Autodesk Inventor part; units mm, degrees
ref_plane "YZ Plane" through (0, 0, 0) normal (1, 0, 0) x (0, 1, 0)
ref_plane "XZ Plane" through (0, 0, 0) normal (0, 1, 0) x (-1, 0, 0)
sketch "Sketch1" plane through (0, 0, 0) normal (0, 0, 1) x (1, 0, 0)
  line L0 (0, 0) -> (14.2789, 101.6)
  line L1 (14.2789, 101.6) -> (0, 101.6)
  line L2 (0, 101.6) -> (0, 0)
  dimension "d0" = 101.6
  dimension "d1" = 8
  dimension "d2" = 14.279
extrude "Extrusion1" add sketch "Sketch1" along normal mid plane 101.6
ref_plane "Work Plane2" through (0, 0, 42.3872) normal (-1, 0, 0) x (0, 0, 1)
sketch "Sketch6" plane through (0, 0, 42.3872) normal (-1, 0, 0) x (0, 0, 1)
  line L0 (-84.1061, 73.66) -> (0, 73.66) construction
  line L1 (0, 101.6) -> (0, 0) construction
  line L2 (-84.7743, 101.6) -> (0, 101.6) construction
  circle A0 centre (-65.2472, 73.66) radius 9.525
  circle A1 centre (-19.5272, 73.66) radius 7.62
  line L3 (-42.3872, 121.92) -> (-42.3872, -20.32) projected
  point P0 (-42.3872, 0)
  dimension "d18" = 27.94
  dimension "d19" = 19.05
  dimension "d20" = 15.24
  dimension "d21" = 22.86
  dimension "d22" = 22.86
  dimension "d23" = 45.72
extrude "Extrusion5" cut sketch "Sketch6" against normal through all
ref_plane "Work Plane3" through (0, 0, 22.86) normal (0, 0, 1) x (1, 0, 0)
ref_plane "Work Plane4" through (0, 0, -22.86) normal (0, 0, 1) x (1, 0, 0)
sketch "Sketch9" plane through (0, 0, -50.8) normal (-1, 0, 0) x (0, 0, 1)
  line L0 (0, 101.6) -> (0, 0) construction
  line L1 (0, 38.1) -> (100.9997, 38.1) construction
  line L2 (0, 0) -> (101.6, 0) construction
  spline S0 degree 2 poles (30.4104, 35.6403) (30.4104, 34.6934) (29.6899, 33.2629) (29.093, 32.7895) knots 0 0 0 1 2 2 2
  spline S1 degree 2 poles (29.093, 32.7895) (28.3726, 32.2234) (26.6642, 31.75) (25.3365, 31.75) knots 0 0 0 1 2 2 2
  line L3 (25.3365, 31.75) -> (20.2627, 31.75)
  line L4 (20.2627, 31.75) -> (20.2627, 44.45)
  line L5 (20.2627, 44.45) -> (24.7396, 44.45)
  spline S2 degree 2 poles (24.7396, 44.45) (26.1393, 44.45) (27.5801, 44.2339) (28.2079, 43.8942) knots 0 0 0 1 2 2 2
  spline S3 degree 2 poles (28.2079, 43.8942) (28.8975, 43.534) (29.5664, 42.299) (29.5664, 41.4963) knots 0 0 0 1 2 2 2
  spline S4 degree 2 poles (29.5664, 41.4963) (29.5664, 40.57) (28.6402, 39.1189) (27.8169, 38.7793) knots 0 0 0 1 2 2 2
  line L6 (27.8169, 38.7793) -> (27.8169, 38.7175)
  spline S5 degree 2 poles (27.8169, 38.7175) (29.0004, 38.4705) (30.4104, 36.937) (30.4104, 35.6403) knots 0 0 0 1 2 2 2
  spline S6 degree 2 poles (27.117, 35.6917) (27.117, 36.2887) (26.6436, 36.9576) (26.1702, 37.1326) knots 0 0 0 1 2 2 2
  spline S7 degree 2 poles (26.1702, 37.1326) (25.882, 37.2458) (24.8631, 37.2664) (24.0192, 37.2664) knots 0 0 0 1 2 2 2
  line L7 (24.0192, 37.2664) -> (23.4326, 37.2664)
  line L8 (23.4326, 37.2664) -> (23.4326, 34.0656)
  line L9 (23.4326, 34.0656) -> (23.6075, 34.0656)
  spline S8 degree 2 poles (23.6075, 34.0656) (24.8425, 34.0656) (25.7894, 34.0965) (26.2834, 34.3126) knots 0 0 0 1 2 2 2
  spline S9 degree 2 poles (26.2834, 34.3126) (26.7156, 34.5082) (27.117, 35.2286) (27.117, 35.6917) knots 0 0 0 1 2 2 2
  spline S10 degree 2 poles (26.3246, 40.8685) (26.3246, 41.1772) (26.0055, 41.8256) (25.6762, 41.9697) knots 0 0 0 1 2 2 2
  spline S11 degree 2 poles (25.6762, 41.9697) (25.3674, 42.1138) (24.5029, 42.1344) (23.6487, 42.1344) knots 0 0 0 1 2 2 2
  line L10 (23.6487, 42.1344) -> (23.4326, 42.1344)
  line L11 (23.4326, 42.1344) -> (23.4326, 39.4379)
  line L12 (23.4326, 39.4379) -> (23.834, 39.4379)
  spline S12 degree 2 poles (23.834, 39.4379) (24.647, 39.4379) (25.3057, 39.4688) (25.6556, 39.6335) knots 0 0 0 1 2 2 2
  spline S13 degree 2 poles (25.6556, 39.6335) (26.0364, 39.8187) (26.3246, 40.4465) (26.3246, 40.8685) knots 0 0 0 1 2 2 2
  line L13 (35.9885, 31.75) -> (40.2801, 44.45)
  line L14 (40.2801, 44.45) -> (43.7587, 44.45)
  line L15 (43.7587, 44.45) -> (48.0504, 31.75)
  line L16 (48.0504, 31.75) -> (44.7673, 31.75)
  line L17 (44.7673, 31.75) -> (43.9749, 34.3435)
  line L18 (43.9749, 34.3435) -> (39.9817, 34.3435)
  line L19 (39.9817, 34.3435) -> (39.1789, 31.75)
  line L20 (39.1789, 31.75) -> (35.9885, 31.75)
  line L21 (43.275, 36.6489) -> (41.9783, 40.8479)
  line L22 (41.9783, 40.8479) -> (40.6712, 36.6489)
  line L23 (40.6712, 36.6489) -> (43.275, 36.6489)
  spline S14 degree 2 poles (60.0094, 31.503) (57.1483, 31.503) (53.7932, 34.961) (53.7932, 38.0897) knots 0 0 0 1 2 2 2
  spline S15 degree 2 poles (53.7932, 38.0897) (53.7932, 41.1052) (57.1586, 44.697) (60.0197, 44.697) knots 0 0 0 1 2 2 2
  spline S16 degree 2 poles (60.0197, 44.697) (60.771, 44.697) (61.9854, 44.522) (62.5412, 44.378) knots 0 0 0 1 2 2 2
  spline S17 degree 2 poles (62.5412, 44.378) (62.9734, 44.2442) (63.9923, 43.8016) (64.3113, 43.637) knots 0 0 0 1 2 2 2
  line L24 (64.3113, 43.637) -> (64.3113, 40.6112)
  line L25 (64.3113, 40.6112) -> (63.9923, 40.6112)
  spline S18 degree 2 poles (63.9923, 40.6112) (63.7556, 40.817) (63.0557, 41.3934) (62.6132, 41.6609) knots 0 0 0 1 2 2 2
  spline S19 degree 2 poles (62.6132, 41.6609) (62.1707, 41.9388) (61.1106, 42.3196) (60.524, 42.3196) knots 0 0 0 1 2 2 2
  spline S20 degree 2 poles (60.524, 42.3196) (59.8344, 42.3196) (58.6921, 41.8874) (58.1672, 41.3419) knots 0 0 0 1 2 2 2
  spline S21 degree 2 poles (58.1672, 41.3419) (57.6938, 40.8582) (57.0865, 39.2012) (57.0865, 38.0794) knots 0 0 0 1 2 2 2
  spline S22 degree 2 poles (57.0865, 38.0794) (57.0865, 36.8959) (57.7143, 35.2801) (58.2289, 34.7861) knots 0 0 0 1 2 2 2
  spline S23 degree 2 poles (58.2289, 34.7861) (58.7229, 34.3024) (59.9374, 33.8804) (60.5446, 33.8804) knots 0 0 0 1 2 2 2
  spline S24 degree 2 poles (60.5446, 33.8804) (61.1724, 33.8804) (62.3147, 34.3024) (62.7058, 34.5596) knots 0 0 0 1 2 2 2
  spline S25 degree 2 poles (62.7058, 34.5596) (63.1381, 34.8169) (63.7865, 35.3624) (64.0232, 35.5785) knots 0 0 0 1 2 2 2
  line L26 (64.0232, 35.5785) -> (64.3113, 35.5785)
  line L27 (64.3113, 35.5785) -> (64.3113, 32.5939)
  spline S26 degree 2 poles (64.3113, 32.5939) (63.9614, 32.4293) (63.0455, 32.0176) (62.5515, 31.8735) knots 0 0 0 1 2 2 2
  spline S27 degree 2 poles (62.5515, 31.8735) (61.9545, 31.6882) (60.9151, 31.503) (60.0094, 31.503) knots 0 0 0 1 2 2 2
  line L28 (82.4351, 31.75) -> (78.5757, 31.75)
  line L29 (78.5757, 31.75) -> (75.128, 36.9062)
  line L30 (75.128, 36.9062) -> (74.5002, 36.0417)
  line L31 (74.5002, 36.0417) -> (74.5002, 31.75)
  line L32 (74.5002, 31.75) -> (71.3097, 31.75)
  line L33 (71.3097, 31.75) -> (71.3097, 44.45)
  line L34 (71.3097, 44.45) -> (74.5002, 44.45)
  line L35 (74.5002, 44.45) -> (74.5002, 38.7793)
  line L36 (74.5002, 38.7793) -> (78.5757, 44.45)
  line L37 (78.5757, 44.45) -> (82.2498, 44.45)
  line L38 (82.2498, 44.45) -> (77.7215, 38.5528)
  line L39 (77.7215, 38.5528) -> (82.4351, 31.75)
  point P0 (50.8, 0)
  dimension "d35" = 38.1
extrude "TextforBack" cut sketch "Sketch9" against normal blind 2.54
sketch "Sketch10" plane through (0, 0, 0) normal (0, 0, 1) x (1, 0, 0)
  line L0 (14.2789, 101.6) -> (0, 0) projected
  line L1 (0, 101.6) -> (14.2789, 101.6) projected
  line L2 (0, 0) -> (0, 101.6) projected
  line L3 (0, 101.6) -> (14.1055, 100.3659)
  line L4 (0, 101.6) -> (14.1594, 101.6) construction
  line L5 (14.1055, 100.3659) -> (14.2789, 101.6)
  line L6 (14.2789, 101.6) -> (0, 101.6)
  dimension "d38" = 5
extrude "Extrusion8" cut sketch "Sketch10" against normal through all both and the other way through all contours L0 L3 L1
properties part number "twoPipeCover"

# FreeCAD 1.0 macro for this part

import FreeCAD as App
import Part
import Sketcher
Q = App.Units.Quantity

doc = App.newDocument("Part")
params = doc.addObject("Spreadsheet::Sheet", "Params")
for row, (alias, value) in enumerate([
    ("sketch1_height", "4 in"),
    ("pad1_length", "4 in"),
    ("sketch2_diameter", "0.6 in"),
    ("sketch2_diameter2", "0.75 in"),
    ("pocket2_length", "0.1 in"),
], start=1):
    params.set(f"A{row}", alias)
    params.set(f"B{row}", "=" + value)
    params.setAlias(f"B{row}", alias)

body = doc.addObject("PartDesign::Body", "Body")

# Sketch on XY plane
sketch1 = doc.addObject("Sketcher::SketchObject", "Sketch")
body.addObject(sketch1)
sketch1.AttachmentSupport = (doc.XY_Plane, [""])
sketch1.MapMode = "FlatFace"
sketch1.addGeometry([
    Part.LineSegment(App.Vector(0, 102, 0), App.Vector(0, 0, 0)),
    Part.LineSegment(App.Vector(0, 0, 0), App.Vector(14, 102, 0)),
    Part.LineSegment(App.Vector(14, 102, 0), App.Vector(0, 102, 0)),
], False)
sketch1.addConstraint([
    Sketcher.Constraint("Coincident", 0, 2, 1, 1),
    Sketcher.Constraint("Coincident", 1, 2, 2, 1),
    Sketcher.Constraint("Coincident", 2, 2, 0, 1),
    Sketcher.Constraint("Vertical", 0),
    Sketcher.Constraint("Horizontal", 2),
    Sketcher.Constraint("Coincident", 0, 2, -1, 1),
    Sketcher.Constraint("DistanceY", 0, 2, 0, 1, Q("4 in")),
    Sketcher.Constraint("Angle", 1, Q("82 deg")),
])
sketch1.setExpression("Constraints[6]", "Params.sketch1_height")
pad1 = doc.addObject("PartDesign::Pad", "Pad")
body.addObject(pad1)
pad1.Profile = sketch1
pad1.setExpression("Length", "Params.pad1_length")
pad1.Midplane = True

# Sketch on YZ plane
sketch2 = doc.addObject("Sketcher::SketchObject", "Sketch001")
body.addObject(sketch2)
sketch2.AttachmentSupport = (doc.YZ_Plane, [""])
sketch2.MapMode = "FlatFace"
sketch2.addGeometry([
    Part.Circle(App.Vector(74, -23, 0), App.Vector(0, 0, 1), 10),
    Part.Circle(App.Vector(74, 23, 0), App.Vector(0, 0, 1), 8),
], False)
sketch2.addConstraint([
    Sketcher.Constraint("Symmetric", 0, 3, 1, 3, -1),
    Sketcher.Constraint("Diameter", 1, Q("0.6 in")),
    Sketcher.Constraint("Diameter", 0, Q("0.75 in")),
    Sketcher.Constraint("DistanceY", 0, 3, -1, 1, Q("0.9 in")),
    Sketcher.Constraint("DistanceX", -1, 1, 0, 3, Q("2.9 in")),
])
sketch2.setExpression("Constraints[1]", "Params.sketch2_diameter")
sketch2.setExpression("Constraints[2]", "Params.sketch2_diameter2")
pocket1 = doc.addObject("PartDesign::Pocket", "Pocket")
body.addObject(pocket1)
pocket1.Profile = sketch2
pocket1.Type = "ThroughAll"
pocket1.Reversed = True

# Sketch on YZ plane
sketch3 = doc.addObject("Sketcher::SketchObject", "Sketch002")
body.addObject(sketch3)
sketch3.AttachmentSupport = (doc.YZ_Plane, [""])
sketch3.MapMode = "FlatFace"
sketch3.addGeometry([
    Part.BSplineCurve([App.Vector(35.6403, -20.3896, 0), App.Vector(34.6934, -20.3896, 0), App.Vector(33.2629, -21.1101, 0), App.Vector(32.7895, -21.707, 0)], [3, 1, 3], [0, 1, 2], False, 2, [1, 1, 1, 1], False),  # 0
    Part.BSplineCurve([App.Vector(38.7175, -22.9831, 0), App.Vector(38.4705, -21.7996, 0), App.Vector(36.937, -20.3896, 0), App.Vector(35.6403, -20.3896, 0)], [3, 1, 3], [0, 1, 2], False, 2, [1, 1, 1, 1], False),  # 1
    Part.LineSegment(App.Vector(38.7175, -22.9831, 0), App.Vector(38.7793, -22.9831, 0)),  # 2
    Part.BSplineCurve([App.Vector(41.4963, -21.2336, 0), App.Vector(40.57, -21.2336, 0), App.Vector(39.1189, -22.1598, 0), App.Vector(38.7793, -22.9831, 0)], [3, 1, 3], [0, 1, 2], False, 2, [1, 1, 1, 1], False),  # 3
    Part.BSplineCurve([App.Vector(43.8942, -22.5921, 0), App.Vector(43.534, -21.9025, 0), App.Vector(42.299, -21.2336, 0), App.Vector(41.4963, -21.2336, 0)], [3, 1, 3], [0, 1, 2], False, 2, [1, 1, 1, 1], False),  # 4
    Part.BSplineCurve([App.Vector(44.45, -26.0604, 0), App.Vector(44.45, -24.6607, 0), App.Vector(44.2339, -23.2199, 0), App.Vector(43.8942, -22.5921, 0)], [3, 1, 3], [0, 1, 2], False, 2, [1, 1, 1, 1], False),  # 5
    Part.LineSegment(App.Vector(44.45, -26.0604, 0), App.Vector(44.45, -30.5373, 0)),  # 6
    Part.LineSegment(App.Vector(44.45, -30.5373, 0), App.Vector(31.75, -30.5373, 0)),  # 7
    Part.LineSegment(App.Vector(31.75, -30.5373, 0), App.Vector(31.75, -25.4635, 0)),  # 8
    Part.BSplineCurve([App.Vector(32.7895, -21.707, 0), App.Vector(32.2234, -22.4274, 0), App.Vector(31.75, -24.1358, 0), App.Vector(31.75, -25.4635, 0)], [3, 1, 3], [0, 1, 2], False, 2, [1, 1, 1, 1], False),  # 9
    Part.BSplineCurve([App.Vector(35.6917, -23.683, 0), App.Vector(36.2887, -23.683, 0), App.Vector(36.9576, -24.1564, 0), App.Vector(37.1326, -24.6298, 0)], [3, 1, 3], [0, 1, 2], False, 2, [1, 1, 1, 1], False),  # 10
    Part.BSplineCurve([App.Vector(34.3126, -24.5166, 0), App.Vector(34.5082, -24.0844, 0), App.Vector(35.2286, -23.683, 0), App.Vector(35.6917, -23.683, 0)], [3, 1, 3], [0, 1, 2], False, 2, [1, 1, 1, 1], False),  # 11
    Part.BSplineCurve([App.Vector(34.0656, -27.1925, 0), App.Vector(34.0656, -25.9575, 0), App.Vector(34.0965, -25.0106, 0), App.Vector(34.3126, -24.5166, 0)], [3, 1, 3], [0, 1, 2], False, 2, [1, 1, 1, 1], False),  # 12
    Part.LineSegment(App.Vector(34.0656, -27.1925, 0), App.Vector(34.0656, -27.3674, 0)),  # 13
    Part.LineSegment(App.Vector(34.0656, -27.3674, 0), App.Vector(37.2664, -27.3674, 0)),  # 14
    Part.LineSegment(App.Vector(37.2664, -27.3674, 0), App.Vector(37.2664, -26.7808, 0)),  # 15
    Part.BSplineCurve([App.Vector(37.1326, -24.6298, 0), App.Vector(37.2458, -24.918, 0), App.Vector(37.2664, -25.9369, 0), App.Vector(37.2664, -26.7808, 0)], [3, 1, 3], [0, 1, 2], False, 2, [1, 1, 1, 1], False),  # 16
    Part.BSplineCurve([App.Vector(40.8685, -24.4754, 0), App.Vector(41.1772, -24.4754, 0), App.Vector(41.8256, -24.7945, 0), App.Vector(41.9697, -25.1238, 0)], [3, 1, 3], [0, 1, 2], False, 2, [1, 1, 1, 1], False),  # 17
    Part.BSplineCurve([App.Vector(39.6335, -25.1444, 0), App.Vector(39.8187, -24.7636, 0), App.Vector(40.4465, -24.4754, 0), App.Vector(40.8685, -24.4754, 0)], [3, 1, 3], [0, 1, 2], False, 2, [1, 1, 1, 1], False),  # 18
    Part.BSplineCurve([App.Vector(39.4379, -26.966, 0), App.Vector(39.4379, -26.153, 0), App.Vector(39.4688, -25.4943, 0), App.Vector(39.6335, -25.1444, 0)], [3, 1, 3], [0, 1, 2], False, 2, [1, 1, 1, 1], False),  # 19
    Part.LineSegment(App.Vector(39.4379, -26.966, 0), App.Vector(39.4379, -27.3674, 0)),  # 20
    Part.LineSegment(App.Vector(39.4379, -27.3674, 0), App.Vector(42.1344, -27.3674, 0)),  # 21
    Part.LineSegment(App.Vector(42.1344, -27.3674, 0), App.Vector(42.1344, -27.1513, 0)),  # 22
    Part.BSplineCurve([App.Vector(41.9697, -25.1238, 0), App.Vector(42.1138, -25.4326, 0), App.Vector(42.1344, -26.2971, 0), App.Vector(42.1344, -27.1513, 0)], [3, 1, 3], [0, 1, 2], False, 2, [1, 1, 1, 1], False),  # 23
    Part.LineSegment(App.Vector(44.45, -10.5199, 0), App.Vector(31.75, -14.8115, 0)),  # 24
    Part.LineSegment(App.Vector(31.75, -14.8115, 0), App.Vector(31.75, -11.6211, 0)),  # 25
    Part.LineSegment(App.Vector(31.75, -11.6211, 0), App.Vector(34.3435, -10.8183, 0)),  # 26
    Part.LineSegment(App.Vector(34.3435, -10.8183, 0), App.Vector(34.3435, -6.8251, 0)),  # 27
    Part.LineSegment(App.Vector(34.3435, -6.8251, 0), App.Vector(31.75, -6.0327, 0)),  # 28
    Part.LineSegment(App.Vector(31.75, -6.0327, 0), App.Vector(31.75, -2.7496, 0)),  # 29
    Part.LineSegment(App.Vector(31.75, -2.7496, 0), App.Vector(44.45, -7.0413, 0)),  # 30
    Part.LineSegment(App.Vector(44.45, -7.0413, 0), App.Vector(44.45, -10.5199, 0)),  # 31
    Part.LineSegment(App.Vector(40.8479, -8.8217, 0), App.Vector(36.6489, -7.525, 0)),  # 32
    Part.LineSegment(App.Vector(36.6489, -7.525, 0), App.Vector(36.6489, -10.1288, 0)),  # 33
    Part.LineSegment(App.Vector(36.6489, -10.1288, 0), App.Vector(40.8479, -8.8217, 0)),  # 34
    Part.BSplineCurve([App.Vector(31.503, 9.2094, 0), App.Vector(31.503, 6.3483, 0), App.Vector(34.961, 2.9932, 0), App.Vector(38.0897, 2.9932, 0)], [3, 1, 3], [0, 1, 2], False, 2, [1, 1, 1, 1], False),  # 35
    Part.BSplineCurve([App.Vector(31.8735, 11.7515, 0), App.Vector(31.6882, 11.1545, 0), App.Vector(31.503, 10.1151, 0), App.Vector(31.503, 9.2094, 0)], [3, 1, 3], [0, 1, 2], False, 2, [1, 1, 1, 1], False),  # 36
    Part.BSplineCurve([App.Vector(32.5939, 13.5113, 0), App.Vector(32.4293, 13.1614, 0), App.Vector(32.0176, 12.2455, 0), App.Vector(31.8735, 11.7515, 0)], [3, 1, 3], [0, 1, 2], False, 2, [1, 1, 1, 1], False),  # 37
    Part.LineSegment(App.Vector(32.5939, 13.5113, 0), App.Vector(35.5785, 13.5113, 0)),  # 38
    Part.LineSegment(App.Vector(35.5785, 13.5113, 0), App.Vector(35.5785, 13.2232, 0)),  # 39
    Part.BSplineCurve([App.Vector(34.5596, 11.9058, 0), App.Vector(34.8169, 12.3381, 0), App.Vector(35.3624, 12.9865, 0), App.Vector(35.5785, 13.2232, 0)], [3, 1, 3], [0, 1, 2], False, 2, [1, 1, 1, 1], False),  # 40
    Part.BSplineCurve([App.Vector(33.8804, 9.7446, 0), App.Vector(33.8804, 10.3724, 0), App.Vector(34.3024, 11.5147, 0), App.Vector(34.5596, 11.9058, 0)], [3, 1, 3], [0, 1, 2], False, 2, [1, 1, 1, 1], False),  # 41
    Part.BSplineCurve([App.Vector(34.7861, 7.4289, 0), App.Vector(34.3024, 7.9229, 0), App.Vector(33.8804, 9.1374, 0), App.Vector(33.8804, 9.7446, 0)], [3, 1, 3], [0, 1, 2], False, 2, [1, 1, 1, 1], False),  # 42
    Part.BSplineCurve([App.Vector(38.0794, 6.2865, 0), App.Vector(36.8959, 6.2865, 0), App.Vector(35.2801, 6.9143, 0), App.Vector(34.7861, 7.4289, 0)], [3, 1, 3], [0, 1, 2], False, 2, [1, 1, 1, 1], False),  # 43
    Part.BSplineCurve([App.Vector(41.3419, 7.3672, 0), App.Vector(40.8582, 6.8938, 0), App.Vector(39.2012, 6.2865, 0), App.Vector(38.0794, 6.2865, 0)], [3, 1, 3], [0, 1, 2], False, 2, [1, 1, 1, 1], False),  # 44
    Part.BSplineCurve([App.Vector(42.3196, 9.724, 0), App.Vector(42.3196, 9.0344, 0), App.Vector(41.8874, 7.8921, 0), App.Vector(41.3419, 7.3672, 0)], [3, 1, 3], [0, 1, 2], False, 2, [1, 1, 1, 1], False),  # 45
    Part.BSplineCurve([App.Vector(41.6609, 11.8132, 0), App.Vector(41.9388, 11.3707, 0), App.Vector(42.3196, 10.3106, 0), App.Vector(42.3196, 9.724, 0)], [3, 1, 3], [0, 1, 2], False, 2, [1, 1, 1, 1], False),  # 46
    Part.BSplineCurve([App.Vector(40.6112, 13.1923, 0), App.Vector(40.817, 12.9556, 0), App.Vector(41.3934, 12.2557, 0), App.Vector(41.6609, 11.8132, 0)], [3, 1, 3], [0, 1, 2], False, 2, [1, 1, 1, 1], False),  # 47
    Part.LineSegment(App.Vector(40.6112, 13.1923, 0), App.Vector(40.6112, 13.5113, 0)),  # 48
    Part.LineSegment(App.Vector(40.6112, 13.5113, 0), App.Vector(43.637, 13.5113, 0)),  # 49
    Part.BSplineCurve([App.Vector(44.378, 11.7412, 0), App.Vector(44.2442, 12.1734, 0), App.Vector(43.8016, 13.1923, 0), App.Vector(43.637, 13.5113, 0)], [3, 1, 3], [0, 1, 2], False, 2, [1, 1, 1, 1], False),  # 50
    Part.BSplineCurve([App.Vector(44.697, 9.2197, 0), App.Vector(44.697, 9.971, 0), App.Vector(44.522, 11.1854, 0), App.Vector(44.378, 11.7412, 0)], [3, 1, 3], [0, 1, 2], False, 2, [1, 1, 1, 1], False),  # 51
    Part.BSplineCurve([App.Vector(38.0897, 2.9932, 0), App.Vector(41.1052, 2.9932, 0), App.Vector(44.697, 6.3586, 0), App.Vector(44.697, 9.2197, 0)], [3, 1, 3], [0, 1, 2], False, 2, [1, 1, 1, 1], False),  # 52
    Part.LineSegment(App.Vector(31.75, 27.7757, 0), App.Vector(31.75, 31.6351, 0)),  # 53
    Part.LineSegment(App.Vector(31.75, 31.6351, 0), App.Vector(38.5528, 26.9215, 0)),  # 54
    Part.LineSegment(App.Vector(38.5528, 26.9215, 0), App.Vector(44.45, 31.4498, 0)),  # 55
    Part.LineSegment(App.Vector(44.45, 31.4498, 0), App.Vector(44.45, 27.7757, 0)),  # 56
    Part.LineSegment(App.Vector(44.45, 27.7757, 0), App.Vector(38.7793, 23.7002, 0)),  # 57
    Part.LineSegment(App.Vector(38.7793, 23.7002, 0), App.Vector(44.45, 23.7002, 0)),  # 58
    Part.LineSegment(App.Vector(44.45, 23.7002, 0), App.Vector(44.45, 20.5097, 0)),  # 59
    Part.LineSegment(App.Vector(44.45, 20.5097, 0), App.Vector(31.75, 20.5097, 0)),  # 60
    Part.LineSegment(App.Vector(31.75, 20.5097, 0), App.Vector(31.75, 23.7002, 0)),  # 61
    Part.LineSegment(App.Vector(31.75, 23.7002, 0), App.Vector(36.0417, 23.7002, 0)),  # 62
    Part.LineSegment(App.Vector(36.0417, 23.7002, 0), App.Vector(36.9062, 24.328, 0)),  # 63
    Part.LineSegment(App.Vector(36.9062, 24.328, 0), App.Vector(31.75, 27.7757, 0)),  # 64
], False)
sketch3.addConstraint([
    Sketcher.Constraint("Block", 0),
    Sketcher.Constraint("Block", 1),
    Sketcher.Constraint("Block", 3),
    Sketcher.Constraint("Block", 4),
    Sketcher.Constraint("Block", 5),
    Sketcher.Constraint("Block", 9),
    Sketcher.Constraint("Block", 10),
    Sketcher.Constraint("Block", 11),
    Sketcher.Constraint("Block", 12),
    Sketcher.Constraint("Block", 16),
    Sketcher.Constraint("Block", 17),
    Sketcher.Constraint("Block", 18),
    Sketcher.Constraint("Block", 19),
    Sketcher.Constraint("Block", 23),
    Sketcher.Constraint("Block", 35),
    Sketcher.Constraint("Block", 36),
    Sketcher.Constraint("Block", 37),
    Sketcher.Constraint("Block", 40),
    Sketcher.Constraint("Block", 41),
    Sketcher.Constraint("Block", 42),
    Sketcher.Constraint("Block", 43),
    Sketcher.Constraint("Block", 44),
    Sketcher.Constraint("Block", 45),
    Sketcher.Constraint("Block", 46),
    Sketcher.Constraint("Block", 47),
    Sketcher.Constraint("Block", 50),
    Sketcher.Constraint("Block", 51),
    Sketcher.Constraint("Block", 52),
    Sketcher.Constraint("Coincident", 1, 1, 2, 1),
    Sketcher.Constraint("Coincident", 2, 2, 3, 2),
    Sketcher.Constraint("Coincident", 5, 1, 6, 1),
    Sketcher.Constraint("Coincident", 6, 2, 7, 1),
    Sketcher.Constraint("Coincident", 7, 2, 8, 1),
    Sketcher.Constraint("Coincident", 8, 2, 9, 2),
    Sketcher.Constraint("Coincident", 12, 1, 13, 1),
    Sketcher.Constraint("Coincident", 13, 2, 14, 1),
    Sketcher.Constraint("Coincident", 14, 2, 15, 1),
    Sketcher.Constraint("Coincident", 15, 2, 16, 2),
    Sketcher.Constraint("Coincident", 19, 1, 20, 1),
    Sketcher.Constraint("Coincident", 20, 2, 21, 1),
    Sketcher.Constraint("Coincident", 21, 2, 22, 1),
    Sketcher.Constraint("Coincident", 22, 2, 23, 2),
    Sketcher.Constraint("Coincident", 24, 2, 25, 1),
    Sketcher.Constraint("Coincident", 25, 2, 26, 1),
    Sketcher.Constraint("Coincident", 26, 2, 27, 1),
    Sketcher.Constraint("Coincident", 27, 2, 28, 1),
    Sketcher.Constraint("Coincident", 28, 2, 29, 1),
    Sketcher.Constraint("Coincident", 29, 2, 30, 1),
    Sketcher.Constraint("Coincident", 30, 2, 31, 1),
    Sketcher.Constraint("Coincident", 31, 2, 24, 1),
    Sketcher.Constraint("Coincident", 32, 2, 33, 1),
    Sketcher.Constraint("Coincident", 33, 2, 34, 1),
    Sketcher.Constraint("Coincident", 34, 2, 32, 1),
    Sketcher.Constraint("Coincident", 37, 1, 38, 1),
    Sketcher.Constraint("Coincident", 38, 2, 39, 1),
    Sketcher.Constraint("Coincident", 39, 2, 40, 2),
    Sketcher.Constraint("Coincident", 47, 1, 48, 1),
    Sketcher.Constraint("Coincident", 48, 2, 49, 1),
    Sketcher.Constraint("Coincident", 49, 2, 50, 2),
    Sketcher.Constraint("Coincident", 53, 2, 54, 1),
    Sketcher.Constraint("Coincident", 54, 2, 55, 1),
    Sketcher.Constraint("Coincident", 55, 2, 56, 1),
    Sketcher.Constraint("Coincident", 56, 2, 57, 1),
    Sketcher.Constraint("Coincident", 57, 2, 58, 1),
    Sketcher.Constraint("Coincident", 58, 2, 59, 1),
    Sketcher.Constraint("Coincident", 59, 2, 60, 1),
    Sketcher.Constraint("Coincident", 60, 2, 61, 1),
    Sketcher.Constraint("Coincident", 61, 2, 62, 1),
    Sketcher.Constraint("Coincident", 62, 2, 63, 1),
    Sketcher.Constraint("Coincident", 63, 2, 64, 1),
    Sketcher.Constraint("Coincident", 64, 2, 53, 1),
    Sketcher.Constraint("Vertical", 6),
    Sketcher.Constraint("Horizontal", 7),
    Sketcher.Constraint("Vertical", 8),
    Sketcher.Constraint("Vertical", 13),
    Sketcher.Constraint("Horizontal", 14),
    Sketcher.Constraint("Vertical", 15),
    Sketcher.Constraint("Vertical", 20),
    Sketcher.Constraint("Horizontal", 21),
    Sketcher.Constraint("Vertical", 22),
    Sketcher.Constraint("Vertical", 25),
    Sketcher.Constraint("Vertical", 27),
    Sketcher.Constraint("Vertical", 29),
    Sketcher.Constraint("Vertical", 31),
    Sketcher.Constraint("Vertical", 33),
    Sketcher.Constraint("Horizontal", 38),
    Sketcher.Constraint("Vertical", 39),
    Sketcher.Constraint("Vertical", 48),
    Sketcher.Constraint("Horizontal", 49),
    Sketcher.Constraint("Vertical", 53),
    Sketcher.Constraint("Vertical", 56),
    Sketcher.Constraint("Horizontal", 58),
    Sketcher.Constraint("Vertical", 59),
    Sketcher.Constraint("Horizontal", 60),
    Sketcher.Constraint("Vertical", 61),
    Sketcher.Constraint("Horizontal", 62),
    Sketcher.Constraint("Horizontal", 14, 2, 20, 2),
    Sketcher.Constraint("Horizontal", 58, 2, 61, 2),
    Sketcher.Constraint("Horizontal", 56, 2, 64, 2),
    Sketcher.Constraint("Vertical", 8, 2, 24, 2),
    Sketcher.Constraint("Vertical", 25, 2, 28, 2),
    Sketcher.Constraint("Vertical", 6, 2, 30, 2),
    Sketcher.Constraint("Vertical", 29, 2, 53, 2),
    Sketcher.Constraint("Vertical", 31, 2, 55, 2),
    Sketcher.Constraint("Vertical", 2, 2, 57, 2),
    Sketcher.Constraint("Vertical", 56, 2, 58, 2),
    Sketcher.Constraint("Vertical", 53, 2, 60, 2),
    Sketcher.Constraint("Equal", 25, 59),
    Sketcher.Constraint("Equal", 24, 30),
    Sketcher.Constraint("Angle", 26, Q("17.1995 deg")),
    Sketcher.Constraint("Angle", 28, Q("163.0104 deg")),
    Sketcher.Constraint("Angle", 34, Q("17.2908 deg")),
    Sketcher.Constraint("Angle", 55, Q("37.5197 deg")),
    Sketcher.Constraint("DistanceY", 15, 1, 15, 2, Q("0.0231 in")),
    Sketcher.Constraint("DistanceY", 25, 1, 25, 2, Q("0.1256 in")),
    Sketcher.Constraint("DistanceY", 33, 2, 33, 1, Q("0.1025 in")),
    Sketcher.Constraint("DistanceX", -1, 1, 63, 2, Q("1.453 in")),
    Sketcher.Constraint("DistanceY", 32, 2, 29, 2, Q("0.188 in")),
    Sketcher.Constraint("DistanceY", 60, 2, 53, 2, Q("0.438 in")),
    Sketcher.Constraint("Distance", 64, Q("0.2442 in")),
    Sketcher.Constraint("DistanceX", 62, 1, 62, 2, 4.2917),
    Sketcher.Constraint("DistanceY", 6, 2, 6, 1, 4.477),
    Sketcher.Constraint("DistanceY", 27, 1, 27, 2, 3.9932),
    Sketcher.Constraint("DistanceY", 29, 1, 29, 2, 3.283),
    Sketcher.Constraint("DistanceY", 31, 2, 31, 1, 3.4786),
    Sketcher.Constraint("DistanceY", 53, 1, 53, 2, 3.8594),
    Sketcher.Constraint("DistanceY", 56, 2, 56, 1, 3.674),
    Sketcher.Constraint("DistanceX", -1, 1, 26, 2, Q("1.3521 in")),
    Sketcher.Constraint("DistanceY", 27, 2, -1, 1, Q("0.2687 in")),
    Sketcher.Constraint("DistanceY", 34, 2, -1, 1, Q("0.3473 in")),
    Sketcher.Constraint("DistanceY", -1, 1, 54, 2, Q("1.0599 in")),
    Sketcher.Constraint("DistanceY", -1, 1, 63, 2, Q("0.9578 in")),
    Sketcher.Constraint("DistanceX", -1, 1, 32, 2, 36.649),
])
pocket2 = doc.addObject("PartDesign::Pocket", "Pocket001")
body.addObject(pocket2)
pocket2.Profile = sketch3
pocket2.setExpression("Length", "Params.pocket2_length")
pocket2.Reversed = True

# Sketch on XY plane
sketch4 = doc.addObject("Sketcher::SketchObject", "Sketch003")
body.addObject(sketch4)
sketch4.AttachmentSupport = (doc.XY_Plane, [""])
sketch4.MapMode = "FlatFace"
sketch4.addGeometry([
    Part.LineSegment(App.Vector(14.1, 100.4, 0), App.Vector(14.3, 101.6, 0)),
    Part.LineSegment(App.Vector(14.3, 101.6, 0), App.Vector(0, 101.6, 0)),
    Part.LineSegment(App.Vector(0, 101.6, 0), App.Vector(14.1, 100.4, 0)),
], False)
sketch4.addConstraint([
    Sketcher.Constraint("Coincident", 0, 2, 1, 1),
    Sketcher.Constraint("Coincident", 1, 2, 2, 1),
    Sketcher.Constraint("Coincident", 2, 2, 0, 1),
    Sketcher.Constraint("Horizontal", 1),
    Sketcher.Constraint("PointOnObject", 1, 2, -2),
    Sketcher.Constraint("Angle", 2, Q("-5 deg")),
    Sketcher.Constraint("DistanceY", -1, 1, 0, 2, Q("4 in")),
    Sketcher.Constraint("Angle", 0, Q("82 deg")),
    Sketcher.Constraint("DistanceX", 1, 2, 1, 1, 14.279),
])
pocket3 = doc.addObject("PartDesign::Pocket", "Pocket002")
body.addObject(pocket3)
pocket3.Profile = sketch4
pocket3.Type = "ThroughAll"
pocket3.Midplane = True

doc.recompute()
